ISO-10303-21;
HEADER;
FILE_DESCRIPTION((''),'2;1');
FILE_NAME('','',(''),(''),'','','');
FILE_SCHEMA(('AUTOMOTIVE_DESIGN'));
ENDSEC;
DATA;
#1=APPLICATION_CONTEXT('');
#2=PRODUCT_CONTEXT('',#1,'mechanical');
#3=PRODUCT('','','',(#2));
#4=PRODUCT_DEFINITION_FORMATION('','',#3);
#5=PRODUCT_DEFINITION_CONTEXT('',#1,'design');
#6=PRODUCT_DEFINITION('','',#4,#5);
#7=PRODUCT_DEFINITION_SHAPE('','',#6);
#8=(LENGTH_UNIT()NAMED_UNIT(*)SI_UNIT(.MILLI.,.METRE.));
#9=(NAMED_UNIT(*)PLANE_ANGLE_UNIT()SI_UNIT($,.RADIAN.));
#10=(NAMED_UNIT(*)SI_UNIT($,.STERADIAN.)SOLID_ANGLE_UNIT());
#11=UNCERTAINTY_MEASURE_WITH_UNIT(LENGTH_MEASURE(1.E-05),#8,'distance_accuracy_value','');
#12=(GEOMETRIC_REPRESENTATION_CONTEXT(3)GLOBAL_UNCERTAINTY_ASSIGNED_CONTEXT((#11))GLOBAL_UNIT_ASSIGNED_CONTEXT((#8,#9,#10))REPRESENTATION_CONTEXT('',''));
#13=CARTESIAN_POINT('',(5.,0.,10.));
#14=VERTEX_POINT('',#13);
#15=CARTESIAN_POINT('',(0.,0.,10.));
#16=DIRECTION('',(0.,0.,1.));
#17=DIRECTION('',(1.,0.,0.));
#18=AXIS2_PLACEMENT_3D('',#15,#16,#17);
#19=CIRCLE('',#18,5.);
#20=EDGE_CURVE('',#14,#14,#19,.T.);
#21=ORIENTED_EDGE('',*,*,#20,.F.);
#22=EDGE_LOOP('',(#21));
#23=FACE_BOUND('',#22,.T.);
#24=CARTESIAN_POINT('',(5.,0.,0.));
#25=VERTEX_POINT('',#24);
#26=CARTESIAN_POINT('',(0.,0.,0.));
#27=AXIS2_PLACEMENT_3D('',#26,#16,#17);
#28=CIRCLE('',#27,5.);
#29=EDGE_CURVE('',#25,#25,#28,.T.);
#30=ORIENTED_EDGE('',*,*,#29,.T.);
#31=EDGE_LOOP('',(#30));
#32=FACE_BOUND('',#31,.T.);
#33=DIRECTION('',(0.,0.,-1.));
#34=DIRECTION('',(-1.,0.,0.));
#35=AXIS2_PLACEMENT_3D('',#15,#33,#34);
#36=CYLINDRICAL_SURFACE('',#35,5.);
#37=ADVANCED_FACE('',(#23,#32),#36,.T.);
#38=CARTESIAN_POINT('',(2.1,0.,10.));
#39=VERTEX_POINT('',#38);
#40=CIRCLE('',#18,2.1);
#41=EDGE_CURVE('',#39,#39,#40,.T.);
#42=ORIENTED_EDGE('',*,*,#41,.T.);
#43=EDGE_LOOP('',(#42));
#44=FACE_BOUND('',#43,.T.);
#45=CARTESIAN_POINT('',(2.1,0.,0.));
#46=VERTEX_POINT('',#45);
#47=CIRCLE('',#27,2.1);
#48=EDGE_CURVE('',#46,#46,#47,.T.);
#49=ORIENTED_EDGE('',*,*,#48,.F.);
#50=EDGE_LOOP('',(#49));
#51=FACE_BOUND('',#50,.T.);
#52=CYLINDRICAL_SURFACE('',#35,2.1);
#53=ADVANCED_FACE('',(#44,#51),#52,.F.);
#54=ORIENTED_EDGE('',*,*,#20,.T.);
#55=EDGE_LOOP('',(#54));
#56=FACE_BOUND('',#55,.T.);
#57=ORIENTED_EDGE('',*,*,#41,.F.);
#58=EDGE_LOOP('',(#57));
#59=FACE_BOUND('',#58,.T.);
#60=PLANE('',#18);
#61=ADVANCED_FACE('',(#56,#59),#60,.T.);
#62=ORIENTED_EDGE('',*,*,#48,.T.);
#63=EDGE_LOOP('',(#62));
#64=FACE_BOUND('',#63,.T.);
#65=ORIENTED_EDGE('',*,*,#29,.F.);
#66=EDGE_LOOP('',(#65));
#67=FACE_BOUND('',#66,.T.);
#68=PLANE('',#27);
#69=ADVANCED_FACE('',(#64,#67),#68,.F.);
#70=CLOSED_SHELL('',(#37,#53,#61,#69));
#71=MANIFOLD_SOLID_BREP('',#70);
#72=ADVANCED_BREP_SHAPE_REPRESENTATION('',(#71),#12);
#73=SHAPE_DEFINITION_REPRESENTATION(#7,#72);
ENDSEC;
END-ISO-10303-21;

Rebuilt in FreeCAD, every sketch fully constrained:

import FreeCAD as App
import Part
import Sketcher

doc = App.newDocument("Part")
params = doc.addObject("Spreadsheet::Sheet", "Params")
for row, (alias, value) in enumerate([
    ("sketch1_diameter", "10 mm"),
    ("sketch1_diameter2", "4.2 mm"),
    ("pad1_length", "10 mm"),
], start=1):
    params.set(f"A{row}", alias)
    params.set(f"B{row}", "=" + value)
    params.setAlias(f"B{row}", alias)

body = doc.addObject("PartDesign::Body", "Body")

sketch1 = body.newObject("Sketcher::SketchObject", "Sketch")
sketch1.AttachmentSupport = (doc.getObject("XY_Plane"), [""])
sketch1.MapMode = "FlatFace"
sketch1.addGeometry([
    Part.Circle(App.Vector(0, 0, 0), App.Vector(0, 0, 1), 5),
    Part.Circle(App.Vector(0, 0, 0), App.Vector(0, 0, 1), 2.1),
], False)
sketch1.addConstraint([
    Sketcher.Constraint("Coincident", 0, 3, -1, 1),
    Sketcher.Constraint("Coincident", 1, 3, -1, 1),
    Sketcher.Constraint("Diameter", 0, 10.0),
    Sketcher.Constraint("Diameter", 1, 4.2),
])
sketch1.setExpression("Constraints[2]", "Params.sketch1_diameter")
sketch1.setExpression("Constraints[3]", "Params.sketch1_diameter2")
pad1 = body.newObject("PartDesign::Pad", "Pad")
pad1.Profile = sketch1
pad1.setExpression("Length", "Params.pad1_length")

doc.recompute()
